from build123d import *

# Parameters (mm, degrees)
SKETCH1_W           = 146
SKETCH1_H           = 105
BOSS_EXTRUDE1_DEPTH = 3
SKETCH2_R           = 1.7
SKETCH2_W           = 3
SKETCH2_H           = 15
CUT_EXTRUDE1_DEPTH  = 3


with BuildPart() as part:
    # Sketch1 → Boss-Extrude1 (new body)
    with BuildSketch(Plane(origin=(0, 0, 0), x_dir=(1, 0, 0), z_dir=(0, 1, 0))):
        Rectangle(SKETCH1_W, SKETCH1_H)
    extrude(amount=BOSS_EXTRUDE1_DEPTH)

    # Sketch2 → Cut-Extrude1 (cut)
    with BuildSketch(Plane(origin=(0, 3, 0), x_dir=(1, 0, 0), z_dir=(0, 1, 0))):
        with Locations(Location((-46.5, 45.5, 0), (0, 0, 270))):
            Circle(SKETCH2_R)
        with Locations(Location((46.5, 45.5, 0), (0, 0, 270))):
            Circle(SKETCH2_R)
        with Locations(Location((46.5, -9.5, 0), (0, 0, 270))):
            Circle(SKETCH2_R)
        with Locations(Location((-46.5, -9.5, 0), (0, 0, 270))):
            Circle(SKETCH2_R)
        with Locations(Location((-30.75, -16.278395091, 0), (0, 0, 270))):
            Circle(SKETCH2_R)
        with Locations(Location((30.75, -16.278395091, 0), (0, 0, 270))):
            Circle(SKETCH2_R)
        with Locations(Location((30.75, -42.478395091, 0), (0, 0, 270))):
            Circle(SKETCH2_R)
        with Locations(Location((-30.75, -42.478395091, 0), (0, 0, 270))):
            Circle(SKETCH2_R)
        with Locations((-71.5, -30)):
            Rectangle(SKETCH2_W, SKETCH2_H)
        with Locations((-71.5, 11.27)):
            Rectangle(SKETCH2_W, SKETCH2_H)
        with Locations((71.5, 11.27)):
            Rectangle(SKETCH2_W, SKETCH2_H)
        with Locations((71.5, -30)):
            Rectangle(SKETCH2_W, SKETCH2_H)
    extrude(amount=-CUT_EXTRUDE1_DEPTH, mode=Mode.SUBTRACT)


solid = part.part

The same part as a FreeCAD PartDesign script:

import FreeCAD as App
import Part
import Sketcher
from FreeCAD import Vector
Q = App.Units.Quantity

doc = App.newDocument("Part")
body = doc.addObject("PartDesign::Body", "Body")

sketch1 = doc.addObject("Sketcher::SketchObject", "Sketch")
body.addObject(sketch1)
sketch1.AttachmentSupport = (doc.XZ_Plane, [""])
sketch1.MapMode = "FlatFace"
sketch1.addGeometry(Part.LineSegment(Vector(-73, -52, 0), Vector(-73, 52, 0)), False)
sketch1.addGeometry(Part.LineSegment(Vector(-73, 52, 0), Vector(73, 52, 0)), False)
sketch1.addGeometry(Part.LineSegment(Vector(73, 52, 0), Vector(73, -52, 0)), False)
sketch1.addGeometry(Part.LineSegment(Vector(73, -52, 0), Vector(-73, -52, 0)), False)
sketch1.addConstraint(Sketcher.Constraint("Coincident", 0, 2, 1, 1))
sketch1.addConstraint(Sketcher.Constraint("Coincident", 1, 2, 2, 1))
sketch1.addConstraint(Sketcher.Constraint("Coincident", 2, 2, 3, 1))
sketch1.addConstraint(Sketcher.Constraint("Coincident", 3, 2, 0, 1))
sketch1.addConstraint(Sketcher.Constraint("Vertical", 0))
sketch1.addConstraint(Sketcher.Constraint("Horizontal", 1))
sketch1.addConstraint(Sketcher.Constraint("Vertical", 2))
sketch1.addConstraint(Sketcher.Constraint("Horizontal", 3))
sketch1.addConstraint(Sketcher.Constraint("Symmetric", 0, 2, 2, 2, -1, 1))
sketch1.addConstraint(Sketcher.Constraint("DistanceX", 1, 1, 1, 2, Q("146 mm")))
sketch1.addConstraint(Sketcher.Constraint("DistanceY", 0, 1, 0, 2, Q("105 mm")))
pad1 = doc.addObject("PartDesign::Pad", "Pad")
body.addObject(pad1)
pad1.Profile = sketch1
pad1.Length = 3
pad1.Reversed = True

sketch2 = doc.addObject("Sketcher::SketchObject", "Sketch001")
body.addObject(sketch2)
sketch2.AttachmentSupport = (doc.XZ_Plane, [""])
sketch2.MapMode = "FlatFace"
sketch2.AttachmentOffset = App.Placement(Vector(0, 0, -3), App.Rotation())
sketch2.addGeometry(Part.Circle(Vector(-46.5, -45.5, 0), Vector(0, 0, 1), 1.7), False)
sketch2.addGeometry(Part.Circle(Vector(46.5, -45.5, 0), Vector(0, 0, 1), 1.7), False)
sketch2.addGeometry(Part.Circle(Vector(46.5, 9.5, 0), Vector(0, 0, 1), 1.7), False)
sketch2.addGeometry(Part.Circle(Vector(-46.5, 9.5, 0), Vector(0, 0, 1), 1.7), False)
sketch2.addGeometry(Part.Circle(Vector(-30.8, 16.3, 0), Vector(0, 0, 1), 1.7), False)
sketch2.addGeometry(Part.Circle(Vector(30.8, 16.3, 0), Vector(0, 0, 1), 1.7), False)
sketch2.addGeometry(Part.Circle(Vector(30.8, 42.5, 0), Vector(0, 0, 1), 1.7), False)
sketch2.addGeometry(Part.Circle(Vector(-30.8, 42.5, 0), Vector(0, 0, 1), 1.7), False)
sketch2.addGeometry(Part.LineSegment(Vector(-73, 22.5, 0), Vector(-73, 37.5, 0)), False)
sketch2.addGeometry(Part.LineSegment(Vector(-73, 37.5, 0), Vector(-70, 37.5, 0)), False)
sketch2.addGeometry(Part.LineSegment(Vector(-70, 37.5, 0), Vector(-70, 22.5, 0)), False)
sketch2.addGeometry(Part.LineSegment(Vector(-70, 22.5, 0), Vector(-73, 22.5, 0)), False)
sketch2.addGeometry(Part.LineSegment(Vector(-73, -18.8, 0), Vector(-73, -3.8, 0)), False)
sketch2.addGeometry(Part.LineSegment(Vector(-73, -3.8, 0), Vector(-70, -3.8, 0)), False)
sketch2.addGeometry(Part.LineSegment(Vector(-70, -3.8, 0), Vector(-70, -18.8, 0)), False)
sketch2.addGeometry(Part.LineSegment(Vector(-70, -18.8, 0), Vector(-73, -18.8, 0)), False)
sketch2.addGeometry(Part.LineSegment(Vector(70, -18.8, 0), Vector(70, -3.8, 0)), False)
sketch2.addGeometry(Part.LineSegment(Vector(70, -3.8, 0), Vector(73, -3.8, 0)), False)
sketch2.addGeometry(Part.LineSegment(Vector(73, -3.8, 0), Vector(73, -18.8, 0)), False)
sketch2.addGeometry(Part.LineSegment(Vector(73, -18.8, 0), Vector(70, -18.8, 0)), False)
sketch2.addGeometry(Part.LineSegment(Vector(70, 22.5, 0), Vector(70, 37.5, 0)), False)
sketch2.addGeometry(Part.LineSegment(Vector(70, 37.5, 0), Vector(73, 37.5, 0)), False)
sketch2.addGeometry(Part.LineSegment(Vector(73, 37.5, 0), Vector(73, 22.5, 0)), False)
sketch2.addGeometry(Part.LineSegment(Vector(73, 22.5, 0), Vector(70, 22.5, 0)), False)
sketch2.addConstraint(Sketcher.Constraint("Coincident", 8, 2, 9, 1))
sketch2.addConstraint(Sketcher.Constraint("Coincident", 9, 2, 10, 1))
sketch2.addConstraint(Sketcher.Constraint("Coincident", 10, 2, 11, 1))
sketch2.addConstraint(Sketcher.Constraint("Coincident", 11, 2, 8, 1))
sketch2.addConstraint(Sketcher.Constraint("Coincident", 12, 2, 13, 1))
sketch2.addConstraint(Sketcher.Constraint("Coincident", 13, 2, 14, 1))
sketch2.addConstraint(Sketcher.Constraint("Coincident", 14, 2, 15, 1))
sketch2.addConstraint(Sketcher.Constraint("Coincident", 15, 2, 12, 1))
sketch2.addConstraint(Sketcher.Constraint("Coincident", 16, 2, 17, 1))
sketch2.addConstraint(Sketcher.Constraint("Coincident", 17, 2, 18, 1))
sketch2.addConstraint(Sketcher.Constraint("Coincident", 18, 2, 19, 1))
sketch2.addConstraint(Sketcher.Constraint("Coincident", 19, 2, 16, 1))
sketch2.addConstraint(Sketcher.Constraint("Coincident", 20, 2, 21, 1))
sketch2.addConstraint(Sketcher.Constraint("Coincident", 21, 2, 22, 1))
sketch2.addConstraint(Sketcher.Constraint("Coincident", 22, 2, 23, 1))
sketch2.addConstraint(Sketcher.Constraint("Coincident", 23, 2, 20, 1))
sketch2.addConstraint(Sketcher.Constraint("Vertical", 8))
sketch2.addConstraint(Sketcher.Constraint("Horizontal", 9))
sketch2.addConstraint(Sketcher.Constraint("Vertical", 10))
sketch2.addConstraint(Sketcher.Constraint("Horizontal", 11))
sketch2.addConstraint(Sketcher.Constraint("Vertical", 12))
sketch2.addConstraint(Sketcher.Constraint("Horizontal", 13))
sketch2.addConstraint(Sketcher.Constraint("Vertical", 14))
sketch2.addConstraint(Sketcher.Constraint("Horizontal", 15))
sketch2.addConstraint(Sketcher.Constraint("Vertical", 16))
sketch2.addConstraint(Sketcher.Constraint("Horizontal", 17))
sketch2.addConstraint(Sketcher.Constraint("Vertical", 18))
sketch2.addConstraint(Sketcher.Constraint("Horizontal", 19))
sketch2.addConstraint(Sketcher.Constraint("Vertical", 20))
sketch2.addConstraint(Sketcher.Constraint("Horizontal", 21))
sketch2.addConstraint(Sketcher.Constraint("Vertical", 22))
sketch2.addConstraint(Sketcher.Constraint("Horizontal", 23))
sketch2.addConstraint(Sketcher.Constraint("Equal", 0, 1))
sketch2.addConstraint(Sketcher.Constraint("Equal", 1, 2))
sketch2.addConstraint(Sketcher.Constraint("Equal", 2, 3))
sketch2.addConstraint(Sketcher.Constraint("Equal", 3, 4))
sketch2.addConstraint(Sketcher.Constraint("Equal", 4, 5))
sketch2.addConstraint(Sketcher.Constraint("Equal", 5, 6))
sketch2.addConstraint(Sketcher.Constraint("Equal", 6, 7))
sketch2.addConstraint(Sketcher.Constraint("Symmetric", 0, 3, 1, 3, -2))
sketch2.addConstraint(Sketcher.Constraint("Symmetric", 2, 3, 3, 3, -2))
sketch2.addConstraint(Sketcher.Constraint("Symmetric", 4, 3, 5, 3, -2))
sketch2.addConstraint(Sketcher.Constraint("Symmetric", 6, 3, 7, 3, -2))
sketch2.addConstraint(Sketcher.Constraint("Symmetric", 13, 2, 16, 2, -2))
sketch2.addConstraint(Sketcher.Constraint("Symmetric", 15, 2, 18, 2, -2))
sketch2.addConstraint(Sketcher.Constraint("Symmetric", 9, 2, 20, 2, -2))
sketch2.addConstraint(Sketcher.Constraint("Symmetric", 11, 2, 22, 2, -2))
sketch2.addConstraint(Sketcher.Constraint("Vertical", 1, 3, 2, 3))
sketch2.addConstraint(Sketcher.Constraint("Vertical", 5, 3, 6, 3))
sketch2.addConstraint(Sketcher.Constraint("Vertical", 11, 2, 12, 2))
sketch2.addConstraint(Sketcher.Constraint("Vertical", 10, 2, 13, 2))
sketch2.addConstraint(Sketcher.Constraint("Equal", 10, 12))
sketch2.addConstraint(Sketcher.Constraint("Diameter", 0, Q("3.4 mm")))
sketch2.addConstraint(Sketcher.Constraint("DistanceX", 9, 1, 9, 2, Q("3 mm")))
sketch2.addConstraint(Sketcher.Constraint("DistanceY", 8, 1, 8, 2, Q("15 mm")))
sketch2.addConstraint(Sketcher.Constraint("DistanceX", 8, 2, -1, 1, Q("73 mm")))
sketch2.addConstraint(Sketcher.Constraint("DistanceX", 0, 3, 1, 3, Q("93 mm")))
sketch2.addConstraint(Sketcher.Constraint("DistanceY", 1, 3, 2, 3, Q("55 mm")))
sketch2.addConstraint(Sketcher.Constraint("DistanceY", 3, 3, 8, 2, Q("28 mm")))
sketch2.addConstraint(Sketcher.Constraint("DistanceY", 0, 3, -1, 1, Q("45.5 mm")))
sketch2.addConstraint(Sketcher.Constraint("DistanceX", 4, 3, 5, 3, Q("61.5 mm")))
sketch2.addConstraint(Sketcher.Constraint("DistanceY", 5, 3, 6, 3, Q("26.2 mm")))
sketch2.addConstraint(Sketcher.Constraint("DistanceY", 12, 2, -1, 1, Q("3.77 mm")))
sketch2.addConstraint(Sketcher.Constraint("DistanceY", -1, 1, 4, 3, Q("16.278395 mm")))
pocket1 = doc.addObject("PartDesign::Pocket", "Pocket")
body.addObject(pocket1)
pocket1.Profile = sketch2
pocket1.Length = 3
pocket1.Reversed = True

doc.recompute()
